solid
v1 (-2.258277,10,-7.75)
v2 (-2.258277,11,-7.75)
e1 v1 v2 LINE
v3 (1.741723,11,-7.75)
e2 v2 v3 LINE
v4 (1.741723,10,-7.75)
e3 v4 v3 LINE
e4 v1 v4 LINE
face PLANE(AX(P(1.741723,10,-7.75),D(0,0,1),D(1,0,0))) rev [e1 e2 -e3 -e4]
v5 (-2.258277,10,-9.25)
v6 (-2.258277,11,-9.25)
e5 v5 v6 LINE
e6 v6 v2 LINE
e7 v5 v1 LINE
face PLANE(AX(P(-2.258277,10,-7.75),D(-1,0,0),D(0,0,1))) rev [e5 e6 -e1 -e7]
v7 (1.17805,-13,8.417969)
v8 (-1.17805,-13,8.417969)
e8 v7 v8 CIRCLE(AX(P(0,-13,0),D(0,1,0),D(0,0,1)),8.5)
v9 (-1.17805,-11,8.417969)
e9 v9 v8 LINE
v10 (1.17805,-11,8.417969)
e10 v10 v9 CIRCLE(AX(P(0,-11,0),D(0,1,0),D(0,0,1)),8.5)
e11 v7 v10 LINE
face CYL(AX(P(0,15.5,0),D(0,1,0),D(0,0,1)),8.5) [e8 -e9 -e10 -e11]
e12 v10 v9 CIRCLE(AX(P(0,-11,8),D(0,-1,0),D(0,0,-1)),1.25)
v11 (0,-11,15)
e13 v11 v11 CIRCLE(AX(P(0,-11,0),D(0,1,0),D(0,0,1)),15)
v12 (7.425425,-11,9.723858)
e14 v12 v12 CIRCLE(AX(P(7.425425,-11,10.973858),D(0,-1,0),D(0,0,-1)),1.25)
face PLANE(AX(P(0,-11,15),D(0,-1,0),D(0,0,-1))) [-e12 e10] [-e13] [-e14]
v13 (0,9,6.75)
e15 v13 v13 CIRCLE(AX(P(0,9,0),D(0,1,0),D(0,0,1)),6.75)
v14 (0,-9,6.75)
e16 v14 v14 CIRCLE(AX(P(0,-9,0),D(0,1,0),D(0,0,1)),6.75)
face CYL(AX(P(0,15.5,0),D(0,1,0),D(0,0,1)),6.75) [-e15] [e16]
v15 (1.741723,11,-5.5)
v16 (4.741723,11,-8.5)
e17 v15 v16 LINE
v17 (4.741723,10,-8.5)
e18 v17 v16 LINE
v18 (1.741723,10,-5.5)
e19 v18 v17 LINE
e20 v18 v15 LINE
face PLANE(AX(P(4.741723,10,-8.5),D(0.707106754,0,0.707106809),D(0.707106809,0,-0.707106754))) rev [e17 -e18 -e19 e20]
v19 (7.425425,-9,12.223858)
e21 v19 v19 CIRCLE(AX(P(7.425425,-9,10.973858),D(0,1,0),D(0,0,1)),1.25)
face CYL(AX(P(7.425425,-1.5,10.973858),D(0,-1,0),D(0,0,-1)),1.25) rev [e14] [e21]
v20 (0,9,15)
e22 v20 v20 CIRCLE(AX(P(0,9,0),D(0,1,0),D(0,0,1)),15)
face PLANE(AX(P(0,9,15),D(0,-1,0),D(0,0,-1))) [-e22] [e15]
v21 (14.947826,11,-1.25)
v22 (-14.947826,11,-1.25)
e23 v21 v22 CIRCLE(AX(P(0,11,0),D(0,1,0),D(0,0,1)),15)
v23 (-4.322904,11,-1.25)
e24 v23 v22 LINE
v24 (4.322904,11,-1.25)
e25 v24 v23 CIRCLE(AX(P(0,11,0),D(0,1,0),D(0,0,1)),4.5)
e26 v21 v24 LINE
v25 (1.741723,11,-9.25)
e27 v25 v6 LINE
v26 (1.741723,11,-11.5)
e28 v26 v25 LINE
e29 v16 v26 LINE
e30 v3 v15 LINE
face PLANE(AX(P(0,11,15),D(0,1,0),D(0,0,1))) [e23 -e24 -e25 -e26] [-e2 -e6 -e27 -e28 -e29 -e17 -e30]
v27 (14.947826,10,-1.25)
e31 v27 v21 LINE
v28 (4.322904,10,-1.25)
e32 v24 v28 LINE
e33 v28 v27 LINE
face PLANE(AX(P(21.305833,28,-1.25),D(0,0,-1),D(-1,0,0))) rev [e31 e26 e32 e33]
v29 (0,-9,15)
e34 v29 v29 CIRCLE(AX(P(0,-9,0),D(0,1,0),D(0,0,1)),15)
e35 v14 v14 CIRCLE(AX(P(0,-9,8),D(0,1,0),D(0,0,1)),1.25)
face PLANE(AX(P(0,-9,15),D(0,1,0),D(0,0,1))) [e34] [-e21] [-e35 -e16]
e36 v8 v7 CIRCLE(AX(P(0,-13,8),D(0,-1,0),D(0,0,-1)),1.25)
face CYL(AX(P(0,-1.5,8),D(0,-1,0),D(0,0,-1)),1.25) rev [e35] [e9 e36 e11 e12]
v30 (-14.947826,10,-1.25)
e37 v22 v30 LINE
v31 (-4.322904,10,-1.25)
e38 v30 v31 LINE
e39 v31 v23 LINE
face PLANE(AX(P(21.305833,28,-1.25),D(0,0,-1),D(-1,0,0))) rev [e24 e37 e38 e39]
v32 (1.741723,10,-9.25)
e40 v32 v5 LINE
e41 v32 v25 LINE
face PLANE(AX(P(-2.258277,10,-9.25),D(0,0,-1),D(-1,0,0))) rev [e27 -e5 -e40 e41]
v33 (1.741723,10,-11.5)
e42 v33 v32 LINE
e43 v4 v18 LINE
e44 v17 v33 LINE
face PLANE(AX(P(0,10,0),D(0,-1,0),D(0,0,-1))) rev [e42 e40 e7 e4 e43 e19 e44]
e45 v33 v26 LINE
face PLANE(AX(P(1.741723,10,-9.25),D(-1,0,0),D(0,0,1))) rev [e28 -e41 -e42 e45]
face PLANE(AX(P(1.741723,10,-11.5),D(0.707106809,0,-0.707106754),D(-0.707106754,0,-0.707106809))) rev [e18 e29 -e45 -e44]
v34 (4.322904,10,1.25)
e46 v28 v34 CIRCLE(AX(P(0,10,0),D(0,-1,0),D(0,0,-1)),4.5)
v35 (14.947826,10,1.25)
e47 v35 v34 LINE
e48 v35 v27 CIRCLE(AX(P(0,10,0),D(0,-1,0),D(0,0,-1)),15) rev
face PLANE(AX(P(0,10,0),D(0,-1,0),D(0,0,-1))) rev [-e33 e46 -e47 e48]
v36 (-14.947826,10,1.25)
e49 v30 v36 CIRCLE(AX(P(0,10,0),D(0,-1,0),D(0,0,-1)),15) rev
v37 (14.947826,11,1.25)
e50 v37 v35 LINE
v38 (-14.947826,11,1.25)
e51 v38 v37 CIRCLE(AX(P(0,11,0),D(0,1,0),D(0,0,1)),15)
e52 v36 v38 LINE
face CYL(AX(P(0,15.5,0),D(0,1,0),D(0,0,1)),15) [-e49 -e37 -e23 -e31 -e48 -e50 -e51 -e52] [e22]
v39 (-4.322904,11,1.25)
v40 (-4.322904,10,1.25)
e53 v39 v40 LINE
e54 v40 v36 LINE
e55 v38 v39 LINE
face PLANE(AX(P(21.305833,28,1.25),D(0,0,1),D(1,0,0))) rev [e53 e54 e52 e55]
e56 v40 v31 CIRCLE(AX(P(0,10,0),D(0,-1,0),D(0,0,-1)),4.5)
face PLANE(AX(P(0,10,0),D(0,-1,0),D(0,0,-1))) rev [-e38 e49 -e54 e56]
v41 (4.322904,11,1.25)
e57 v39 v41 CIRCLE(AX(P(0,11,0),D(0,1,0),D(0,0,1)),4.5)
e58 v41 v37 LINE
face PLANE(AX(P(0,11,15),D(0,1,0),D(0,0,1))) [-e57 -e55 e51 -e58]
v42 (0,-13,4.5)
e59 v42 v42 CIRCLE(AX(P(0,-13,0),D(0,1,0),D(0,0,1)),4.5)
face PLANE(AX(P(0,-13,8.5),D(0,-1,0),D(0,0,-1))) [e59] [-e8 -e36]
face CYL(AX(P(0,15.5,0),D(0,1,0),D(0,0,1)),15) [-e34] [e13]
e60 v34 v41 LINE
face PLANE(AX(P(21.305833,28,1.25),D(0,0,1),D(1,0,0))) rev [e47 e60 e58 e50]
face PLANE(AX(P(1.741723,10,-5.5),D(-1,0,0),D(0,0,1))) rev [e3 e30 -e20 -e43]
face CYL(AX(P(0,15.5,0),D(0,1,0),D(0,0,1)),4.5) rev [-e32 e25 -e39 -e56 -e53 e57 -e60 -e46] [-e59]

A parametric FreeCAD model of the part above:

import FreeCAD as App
import Part
import Sketcher

V = App.Vector


def add_polygon(sketch, points):
    """Adds a closed chain of lines whose ends are joined by coincident constraints."""
    first, n = sketch.GeometryCount, len(points)
    for a, b in zip(points, points[1:] + points[:1]):
        sketch.addGeometry(Part.LineSegment(App.Vector(*a, 0), App.Vector(*b, 0)), False)
    for i in range(n):
        sketch.addConstraint(Sketcher.Constraint("Coincident", first + i, 2, first + (i + 1) % n, 1))

doc = App.newDocument("Part")
body = doc.addObject("PartDesign::Body", "Body")

# Sketch on YZ plane
sketch1 = doc.addObject("Sketcher::SketchObject", "Sketch")
body.addObject(sketch1)
sketch1.AttachmentSupport = (doc.YZ_Plane, [""])
sketch1.MapMode = "FlatFace"
add_polygon(sketch1, [(11, 15), (9, 15), (9, 6.8), (-9, 6.8), (-9, 15), (-11, 15), (-11, 8.5), (-13, 8.5), (-13, 4.5), (11, 4.5)])  # lines 0-9
sketch1.addConstraint([
    Sketcher.Constraint("Horizontal", 0),
    Sketcher.Constraint("Vertical", 1),
    Sketcher.Constraint("Horizontal", 2),
    Sketcher.Constraint("Vertical", 3),
    Sketcher.Constraint("Horizontal", 4),
    Sketcher.Constraint("Vertical", 5),
    Sketcher.Constraint("Horizontal", 6),
    Sketcher.Constraint("Vertical", 7),
    Sketcher.Constraint("Horizontal", 8),
    Sketcher.Constraint("Vertical", 9),
    Sketcher.Constraint("Symmetric", 0, 2, 3, 2, -2),
    Sketcher.Constraint("Equal", 0, 4),
    Sketcher.Constraint("Equal", 4, 6),
    Sketcher.Constraint("DistanceX", 0, 2, 0, 1, 2.0),
    Sketcher.Constraint("DistanceX", 2, 2, 2, 1, 18.0),
    Sketcher.Constraint("DistanceY", 7, 2, 7, 1, 4.0),
    Sketcher.Constraint("DistanceY", 5, 2, 5, 1, 6.5),
    Sketcher.Constraint("DistanceY", -1, 1, 0, 2, 15.0),
    Sketcher.Constraint("DistanceY", 1, 2, 1, 1, 8.25),
])
revolution = doc.addObject("PartDesign::Revolution", "Revolution")
body.addObject(revolution)
revolution.Profile = sketch1
revolution.ReferenceAxis = (sketch1, ["H_Axis"])
revolution.Angle = 360

# Sketch on XZ plane
sketch2 = doc.addObject("Sketcher::SketchObject", "Sketch001")
body.addObject(sketch2)
sketch2.AttachmentSupport = (doc.XZ_Plane, [""])
sketch2.MapMode = "FlatFace"
sketch2.AttachmentOffset = App.Placement(V(0, 0, -11), App.Rotation())
add_polygon(sketch2, [(1.7, -9.2), (-2.3, -9.2), (-2.3, -7.8), (1.7, -7.8), (1.7, -5.5), (4.7, -8.5), (1.7, -11.5)])  # lines 0-6
sketch2.addConstraint([
    Sketcher.Constraint("Horizontal", 0),
    Sketcher.Constraint("Vertical", 1),
    Sketcher.Constraint("Horizontal", 2),
    Sketcher.Constraint("Vertical", 3),
    Sketcher.Constraint("Vertical", 6),
    Sketcher.Constraint("Perpendicular", 4, 5),
    Sketcher.Constraint("Vertical", 3, 2, 5, 2),
    Sketcher.Constraint("Equal", 3, 6),
    Sketcher.Constraint("Equal", 4, 5),
    Sketcher.Constraint("DistanceX", 0, 2, 0, 1, 4.0),
    Sketcher.Constraint("DistanceY", 1, 1, 1, 2, 1.5),
    Sketcher.Constraint("DistanceX", 2, 2, 4, 2, 3.0),
    Sketcher.Constraint("DistanceY", 3, 2, -1, 1, 5.5),
    Sketcher.Constraint("DistanceX", 0, 2, -1, 1, 2.258277),
])
pocket1 = doc.addObject("PartDesign::Pocket", "Pocket")
body.addObject(pocket1)
pocket1.Profile = sketch2
pocket1.Length = 1
pocket1.Reversed = True

# Sketch on XZ plane
sketch3 = doc.addObject("Sketcher::SketchObject", "Sketch002")
body.addObject(sketch3)
sketch3.AttachmentSupport = (doc.XZ_Plane, [""])
sketch3.MapMode = "FlatFace"
sketch3.AttachmentOffset = App.Placement(V(0, 0, -27), App.Rotation())
add_polygon(sketch3, [(-21.3, 1.2), (-21.3, -1.2), (21.3, -1.2), (21.3, 1.2)])  # lines 0-3
sketch3.addConstraint([
    Sketcher.Constraint("Vertical", 0),
    Sketcher.Constraint("Horizontal", 1),
    Sketcher.Constraint("Vertical", 2),
    Sketcher.Constraint("Horizontal", 3),
    Sketcher.Constraint("Symmetric", 0, 2, 2, 2, -1, 1),
    Sketcher.Constraint("DistanceY", 0, 2, 0, 1, 2.5),
    Sketcher.Constraint("DistanceX", 1, 1, 1, 2, 42.611665),
])
pocket2 = doc.addObject("PartDesign::Pocket", "Pocket001")
body.addObject(pocket2)
pocket2.Profile = sketch3
pocket2.Type = "TwoLengths"
pocket2.Length = 17
pocket2.Length2 = 1
pocket2.Reversed = True

# Sketch on XZ plane
sketch4 = doc.addObject("Sketcher::SketchObject", "Sketch003")
body.addObject(sketch4)
sketch4.AttachmentSupport = (doc.XZ_Plane, [""])
sketch4.MapMode = "FlatFace"
sketch4.AttachmentOffset = App.Placement(V(0, 0, 11), App.Rotation())
sketch4.addGeometry([
    Part.Circle(V(0, 8, 0), V(0, 0, 1), 1.2),
    Part.Circle(V(7.4, 11, 0), V(0, 0, 1), 1.2),
], False)
sketch4.addConstraint([
    Sketcher.Constraint("Equal", 0, 1),
    Sketcher.Constraint("PointOnObject", 0, 3, -2),
    Sketcher.Constraint("Diameter", 0, 2.5),
    Sketcher.Constraint("DistanceY", -1, 1, 0, 3, 8.0),
    Sketcher.Constraint("DistanceY", -1, 1, 1, 3, 10.973858),
    Sketcher.Constraint("DistanceX", -1, 1, 1, 3, 7.425425),
])
pocket3 = doc.addObject("PartDesign::Pocket", "Pocket002")
body.addObject(pocket3)
pocket3.Profile = sketch4
pocket3.Length = 19
pocket3.Midplane = True

doc.recompute()
